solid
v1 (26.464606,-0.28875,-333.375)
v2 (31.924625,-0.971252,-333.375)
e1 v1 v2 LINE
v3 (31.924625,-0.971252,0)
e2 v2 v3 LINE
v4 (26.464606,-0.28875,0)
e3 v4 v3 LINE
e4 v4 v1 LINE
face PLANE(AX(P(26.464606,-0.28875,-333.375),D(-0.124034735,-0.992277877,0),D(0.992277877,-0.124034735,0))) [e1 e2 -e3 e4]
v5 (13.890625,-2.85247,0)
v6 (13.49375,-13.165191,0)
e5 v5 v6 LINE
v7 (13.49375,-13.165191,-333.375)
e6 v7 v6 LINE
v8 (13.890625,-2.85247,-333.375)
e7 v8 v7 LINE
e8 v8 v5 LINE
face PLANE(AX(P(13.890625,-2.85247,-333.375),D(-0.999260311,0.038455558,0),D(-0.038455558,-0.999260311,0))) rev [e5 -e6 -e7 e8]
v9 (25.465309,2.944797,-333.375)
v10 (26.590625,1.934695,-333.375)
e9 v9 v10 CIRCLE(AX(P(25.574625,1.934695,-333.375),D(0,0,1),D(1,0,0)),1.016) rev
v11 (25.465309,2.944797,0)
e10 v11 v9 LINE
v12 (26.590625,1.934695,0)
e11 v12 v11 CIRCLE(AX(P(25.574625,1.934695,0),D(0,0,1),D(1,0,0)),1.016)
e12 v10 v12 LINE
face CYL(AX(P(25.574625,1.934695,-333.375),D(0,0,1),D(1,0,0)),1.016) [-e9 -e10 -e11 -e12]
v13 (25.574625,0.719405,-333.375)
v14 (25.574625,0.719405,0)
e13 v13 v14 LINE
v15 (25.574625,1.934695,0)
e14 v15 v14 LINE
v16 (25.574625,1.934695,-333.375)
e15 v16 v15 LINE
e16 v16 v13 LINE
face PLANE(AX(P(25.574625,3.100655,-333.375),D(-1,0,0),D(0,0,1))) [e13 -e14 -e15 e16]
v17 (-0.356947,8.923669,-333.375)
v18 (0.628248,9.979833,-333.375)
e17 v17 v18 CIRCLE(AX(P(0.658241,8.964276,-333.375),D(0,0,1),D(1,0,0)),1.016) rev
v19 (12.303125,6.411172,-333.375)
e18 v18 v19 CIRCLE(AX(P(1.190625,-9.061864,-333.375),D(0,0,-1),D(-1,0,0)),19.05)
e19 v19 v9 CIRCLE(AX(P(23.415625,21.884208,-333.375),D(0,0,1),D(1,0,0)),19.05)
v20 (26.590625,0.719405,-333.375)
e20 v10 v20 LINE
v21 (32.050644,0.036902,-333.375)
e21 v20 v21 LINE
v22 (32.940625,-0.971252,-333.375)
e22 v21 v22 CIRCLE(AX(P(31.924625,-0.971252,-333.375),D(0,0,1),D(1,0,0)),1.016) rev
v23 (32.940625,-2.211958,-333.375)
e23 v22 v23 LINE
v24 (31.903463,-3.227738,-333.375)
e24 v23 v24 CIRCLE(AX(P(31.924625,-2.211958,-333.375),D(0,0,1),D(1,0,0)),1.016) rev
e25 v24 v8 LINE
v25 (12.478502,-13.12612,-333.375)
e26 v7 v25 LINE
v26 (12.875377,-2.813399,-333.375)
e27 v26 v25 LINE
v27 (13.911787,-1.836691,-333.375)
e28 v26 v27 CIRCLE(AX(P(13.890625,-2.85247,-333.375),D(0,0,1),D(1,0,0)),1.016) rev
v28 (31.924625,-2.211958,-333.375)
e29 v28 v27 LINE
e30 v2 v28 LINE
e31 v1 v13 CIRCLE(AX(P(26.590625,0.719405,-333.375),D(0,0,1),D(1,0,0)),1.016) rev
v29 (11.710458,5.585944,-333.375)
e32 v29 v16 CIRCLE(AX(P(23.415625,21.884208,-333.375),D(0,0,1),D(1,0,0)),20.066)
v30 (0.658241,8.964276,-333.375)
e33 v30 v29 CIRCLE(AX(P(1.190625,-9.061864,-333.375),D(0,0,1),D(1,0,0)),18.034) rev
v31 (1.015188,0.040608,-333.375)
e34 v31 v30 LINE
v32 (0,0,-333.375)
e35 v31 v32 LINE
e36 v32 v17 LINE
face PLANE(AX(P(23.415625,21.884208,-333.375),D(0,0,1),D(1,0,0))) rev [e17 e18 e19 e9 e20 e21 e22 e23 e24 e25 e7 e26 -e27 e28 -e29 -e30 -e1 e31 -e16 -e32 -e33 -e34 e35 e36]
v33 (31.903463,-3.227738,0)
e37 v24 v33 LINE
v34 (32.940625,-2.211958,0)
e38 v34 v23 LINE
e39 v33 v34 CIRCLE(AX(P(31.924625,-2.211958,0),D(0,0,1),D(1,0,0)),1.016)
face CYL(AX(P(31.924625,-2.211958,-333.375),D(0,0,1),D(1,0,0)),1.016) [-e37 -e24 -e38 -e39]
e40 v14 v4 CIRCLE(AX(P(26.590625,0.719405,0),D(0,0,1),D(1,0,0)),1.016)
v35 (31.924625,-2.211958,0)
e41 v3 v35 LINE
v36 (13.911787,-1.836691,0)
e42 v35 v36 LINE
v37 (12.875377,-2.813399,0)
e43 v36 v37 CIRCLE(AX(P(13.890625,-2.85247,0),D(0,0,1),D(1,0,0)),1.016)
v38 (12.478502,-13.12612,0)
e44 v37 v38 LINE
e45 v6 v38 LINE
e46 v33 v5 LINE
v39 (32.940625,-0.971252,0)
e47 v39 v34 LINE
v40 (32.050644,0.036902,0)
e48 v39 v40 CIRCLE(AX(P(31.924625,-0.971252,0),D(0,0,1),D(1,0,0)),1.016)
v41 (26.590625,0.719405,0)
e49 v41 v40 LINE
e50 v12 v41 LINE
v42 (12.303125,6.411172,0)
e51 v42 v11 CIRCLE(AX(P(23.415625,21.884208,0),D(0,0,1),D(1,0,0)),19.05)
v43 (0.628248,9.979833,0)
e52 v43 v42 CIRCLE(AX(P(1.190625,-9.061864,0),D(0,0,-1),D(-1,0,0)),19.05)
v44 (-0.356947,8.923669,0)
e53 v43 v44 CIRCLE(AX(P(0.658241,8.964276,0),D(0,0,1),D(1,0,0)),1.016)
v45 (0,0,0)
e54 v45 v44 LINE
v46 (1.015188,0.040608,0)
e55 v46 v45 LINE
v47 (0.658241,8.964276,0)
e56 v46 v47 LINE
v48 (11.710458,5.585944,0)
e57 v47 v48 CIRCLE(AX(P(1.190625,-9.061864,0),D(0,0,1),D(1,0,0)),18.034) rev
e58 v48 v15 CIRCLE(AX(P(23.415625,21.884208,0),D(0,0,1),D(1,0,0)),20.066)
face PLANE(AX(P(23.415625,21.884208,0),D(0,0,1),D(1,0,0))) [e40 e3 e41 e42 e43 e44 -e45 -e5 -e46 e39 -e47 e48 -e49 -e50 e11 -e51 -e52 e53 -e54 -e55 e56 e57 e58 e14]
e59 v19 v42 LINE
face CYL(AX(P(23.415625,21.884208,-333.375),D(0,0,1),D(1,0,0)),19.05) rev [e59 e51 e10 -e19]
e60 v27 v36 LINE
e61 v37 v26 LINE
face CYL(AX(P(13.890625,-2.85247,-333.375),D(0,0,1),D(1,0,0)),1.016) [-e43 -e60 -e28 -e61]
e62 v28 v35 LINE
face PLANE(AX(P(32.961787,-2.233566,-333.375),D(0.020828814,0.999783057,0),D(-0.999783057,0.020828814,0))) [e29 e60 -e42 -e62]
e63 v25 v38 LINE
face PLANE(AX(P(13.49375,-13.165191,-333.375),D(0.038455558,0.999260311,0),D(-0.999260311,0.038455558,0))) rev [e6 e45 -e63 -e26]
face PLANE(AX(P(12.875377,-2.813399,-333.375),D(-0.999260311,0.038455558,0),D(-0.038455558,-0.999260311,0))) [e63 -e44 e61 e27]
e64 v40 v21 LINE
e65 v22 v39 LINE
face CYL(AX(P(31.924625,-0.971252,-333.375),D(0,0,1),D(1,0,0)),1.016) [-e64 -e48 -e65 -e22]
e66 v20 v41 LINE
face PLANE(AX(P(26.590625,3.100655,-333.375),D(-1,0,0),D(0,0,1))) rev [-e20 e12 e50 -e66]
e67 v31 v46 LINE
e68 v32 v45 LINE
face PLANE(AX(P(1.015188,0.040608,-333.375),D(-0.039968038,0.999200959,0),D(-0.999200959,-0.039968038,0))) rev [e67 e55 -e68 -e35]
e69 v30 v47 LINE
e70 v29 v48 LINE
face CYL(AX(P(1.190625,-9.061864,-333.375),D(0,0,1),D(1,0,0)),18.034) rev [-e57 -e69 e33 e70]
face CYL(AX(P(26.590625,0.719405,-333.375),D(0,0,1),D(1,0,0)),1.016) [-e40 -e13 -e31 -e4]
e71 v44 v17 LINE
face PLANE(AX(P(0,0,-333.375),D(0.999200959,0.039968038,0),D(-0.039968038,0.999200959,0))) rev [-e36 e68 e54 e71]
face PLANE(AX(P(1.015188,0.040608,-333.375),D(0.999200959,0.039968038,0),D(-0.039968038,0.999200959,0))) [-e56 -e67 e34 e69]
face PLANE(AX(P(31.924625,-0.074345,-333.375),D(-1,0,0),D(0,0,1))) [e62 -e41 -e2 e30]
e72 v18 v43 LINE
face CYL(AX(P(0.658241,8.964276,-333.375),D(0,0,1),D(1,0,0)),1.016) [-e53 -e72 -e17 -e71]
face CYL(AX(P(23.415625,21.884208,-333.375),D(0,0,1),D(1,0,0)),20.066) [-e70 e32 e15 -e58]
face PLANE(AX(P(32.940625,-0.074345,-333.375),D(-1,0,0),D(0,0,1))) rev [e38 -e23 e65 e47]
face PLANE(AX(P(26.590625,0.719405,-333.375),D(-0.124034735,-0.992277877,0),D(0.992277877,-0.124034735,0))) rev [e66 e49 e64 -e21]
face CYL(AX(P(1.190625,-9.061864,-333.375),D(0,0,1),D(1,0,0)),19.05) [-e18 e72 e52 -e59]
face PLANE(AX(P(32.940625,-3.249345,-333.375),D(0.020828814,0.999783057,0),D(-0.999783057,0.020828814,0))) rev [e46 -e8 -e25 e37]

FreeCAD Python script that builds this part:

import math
import FreeCAD as App
import Part
import Sketcher

V = App.Vector
Q = App.Units.Quantity


def edges_at(feature, points):
    """Names of the edges that pass closest to the given points."""
    edges = feature.Shape.Edges
    near = lambda p: min(range(len(edges)), key=lambda i: edges[i].distToShape(Part.Vertex(*p))[0])
    return sorted({f"Edge{near(p) + 1}" for p in points})

doc = App.newDocument("Part")
body = doc.addObject("PartDesign::Body", "Body")

sketch1 = body.newObject("Sketcher::SketchObject", "Sketch")
sketch1.AttachmentSupport = (doc.getObject("XY_Plane"), [""])
sketch1.MapMode = "FlatFace"
sketch1.addGeometry([
    Part.LineSegment(V(-0.396875, 9.921875, 0), V(0, 0, 0)),
    Part.LineSegment(V(0, 0, 0), V(1.015188, 0.040608, 0)),
    Part.LineSegment(V(1.015188, 0.040608, 0), V(0.658241, 8.964276, 0)),
    Part.ArcOfCircle(Part.Circle(V(1.190625, -9.061864, 0), V(0, 0, 1), 18.034), math.radians(54.314665), math.radians(91.69168)),
    Part.ArcOfCircle(Part.Circle(V(23.415625, 21.884208, 0), V(0, 0, 1), 20.066), math.radians(-125.685335), math.radians(-83.823307)),
    Part.LineSegment(V(25.574625, 1.934695, 0), V(25.574625, -0.177502, 0)),
    Part.LineSegment(V(25.574625, -0.177502, 0), V(31.924625, -0.971252, 0)),
    Part.LineSegment(V(31.924625, -0.971252, 0), V(31.924625, -2.211958, 0)),
    Part.LineSegment(V(31.924625, -2.211958, 0), V(12.913764, -1.815898, 0)),
    Part.LineSegment(V(12.913764, -1.815898, 0), V(12.478502, -13.12612, 0)),
    Part.LineSegment(V(12.478502, -13.12612, 0), V(13.49375, -13.165191, 0)),
    Part.LineSegment(V(13.49375, -13.165191, 0), V(13.890625, -2.85247, 0)),
    Part.LineSegment(V(13.890625, -2.85247, 0), V(32.940625, -3.249345, 0)),
    Part.LineSegment(V(32.940625, -3.249345, 0), V(32.940625, -0.074345, 0)),
    Part.LineSegment(V(32.940625, -0.074345, 0), V(26.590625, 0.719405, 0)),
    Part.LineSegment(V(26.590625, 0.719405, 0), V(26.590625, 3.100655, 0)),
    Part.ArcOfCircle(Part.Circle(V(23.415625, 21.884208, 0), V(0, 0, 1), 19.05), math.radians(-125.685335), math.radians(-80.405932)),
    Part.ArcOfCircle(Part.Circle(V(1.190625, -9.061864, 0), V(0, 0, 1), 19.05), math.radians(54.314665), math.radians(94.780192)),
], False)
sketch1.addConstraint([
    Sketcher.Constraint("Coincident", 0, 2, 1, 1),
    Sketcher.Constraint("Coincident", 1, 2, 2, 1),
    Sketcher.Constraint("Coincident", 2, 2, 3, 2),
    Sketcher.Constraint("Tangent", 3, 1, 4, 1),
    Sketcher.Constraint("Coincident", 4, 2, 5, 1),
    Sketcher.Constraint("Coincident", 5, 2, 6, 1),
    Sketcher.Constraint("Coincident", 6, 2, 7, 1),
    Sketcher.Constraint("Coincident", 7, 2, 8, 1),
    Sketcher.Constraint("Coincident", 8, 2, 9, 1),
    Sketcher.Constraint("Coincident", 9, 2, 10, 1),
    Sketcher.Constraint("Coincident", 10, 2, 11, 1),
    Sketcher.Constraint("Coincident", 11, 2, 12, 1),
    Sketcher.Constraint("Coincident", 12, 2, 13, 1),
    Sketcher.Constraint("Coincident", 13, 2, 14, 1),
    Sketcher.Constraint("Coincident", 14, 2, 15, 1),
    Sketcher.Constraint("Coincident", 15, 2, 16, 2),
    Sketcher.Constraint("Tangent", 16, 1, 17, 1),
    Sketcher.Constraint("Coincident", 17, 2, 0, 1),
    Sketcher.Constraint("Vertical", 5),
    Sketcher.Constraint("Vertical", 7),
    Sketcher.Constraint("Vertical", 13),
    Sketcher.Constraint("Vertical", 15),
    Sketcher.Constraint("Coincident", 0, 2, -1, 1),
    Sketcher.Constraint("Coincident", 16, 3, 4, 3),
    Sketcher.Constraint("Coincident", 17, 3, 3, 3),
    Sketcher.Constraint("Equal", 16, 17),
    Sketcher.Constraint("Perpendicular", 0, 1),
    Sketcher.Constraint("Perpendicular", 1, 2),
    Sketcher.Constraint("Perpendicular", 9, 10),
    Sketcher.Constraint("Perpendicular", 10, 11),
    Sketcher.Constraint("Parallel", 8, 12),
    Sketcher.Constraint("Parallel", 6, 14),
    Sketcher.Constraint("Equal", 1, 10),
    Sketcher.Constraint("Equal", 6, 14),
    Sketcher.Constraint("Radius", 3, Q("0.71 in")),
    Sketcher.Constraint("Radius", 4, Q("0.79 in")),
    Sketcher.Constraint("DistanceX", 17, 2, 16, 1, Q("0.5 in")),
    Sketcher.Constraint("Distance", 1, Q("0.04 in")),
    Sketcher.Constraint("DistanceY", 13, 1, 13, 2, Q("0.125 in")),
    Sketcher.Constraint("DistanceY", 15, 1, 15, 2, Q("0.09375 in")),
    Sketcher.Constraint("DistanceX", 5, 2, 6, 2, Q("0.25 in")),
    Sketcher.Constraint("DistanceX", 11, 2, 5, 2, Q("0.46 in")),
    Sketcher.Constraint("DistanceX", 7, 2, 12, 2, Q("0.04 in")),
    Sketcher.Constraint("DistanceX", -1, 1, 3, 3, Q("0.046875 in")),
    Sketcher.Constraint("DistanceX", -1, 1, 4, 3, Q("0.921875 in")),
    Sketcher.Constraint("DistanceX", -1, 1, 10, 2, Q("0.53125 in")),
    Sketcher.Constraint("DistanceX", -1, 1, 11, 2, Q("0.546875 in")),
    Sketcher.Constraint("DistanceY", -1, 1, 17, 2, Q("0.390625 in")),
    Sketcher.Constraint("DistanceY", 6, 2, 5, 2, Q("0.03125 in")),
    Sketcher.Constraint("DistanceY", 12, 2, 11, 2, Q("0.015625 in")),
    Sketcher.Constraint("DistanceY", 5, 2, -1, 1, 0.177502),
    Sketcher.Constraint("DistanceY", 8, 2, -1, 1, 1.815898),
    Sketcher.Constraint("DistanceY", 9, 2, -1, 1, 13.12612),
])
pad1 = body.newObject("PartDesign::Pad", "Pad")
pad1.Profile = sketch1
pad1.Length = Q("13.125 in")
pad1.Reversed = True
doc.recompute()

fillet = body.newObject("PartDesign::Fillet", "Fillet")
fillet.Base = (pad1, edges_at(pad1, [
    (12.914, -1.816, -166.688),
    (25.575, -0.178, -166.688),
    (-0.397, 9.922, -166.688),
    (26.591, 3.101, -166.688),
    (32.941, -0.074, -166.688),
    (32.941, -3.249, -166.688),
]))
fillet.Radius = Q("0.04 in")

doc.recompute()
